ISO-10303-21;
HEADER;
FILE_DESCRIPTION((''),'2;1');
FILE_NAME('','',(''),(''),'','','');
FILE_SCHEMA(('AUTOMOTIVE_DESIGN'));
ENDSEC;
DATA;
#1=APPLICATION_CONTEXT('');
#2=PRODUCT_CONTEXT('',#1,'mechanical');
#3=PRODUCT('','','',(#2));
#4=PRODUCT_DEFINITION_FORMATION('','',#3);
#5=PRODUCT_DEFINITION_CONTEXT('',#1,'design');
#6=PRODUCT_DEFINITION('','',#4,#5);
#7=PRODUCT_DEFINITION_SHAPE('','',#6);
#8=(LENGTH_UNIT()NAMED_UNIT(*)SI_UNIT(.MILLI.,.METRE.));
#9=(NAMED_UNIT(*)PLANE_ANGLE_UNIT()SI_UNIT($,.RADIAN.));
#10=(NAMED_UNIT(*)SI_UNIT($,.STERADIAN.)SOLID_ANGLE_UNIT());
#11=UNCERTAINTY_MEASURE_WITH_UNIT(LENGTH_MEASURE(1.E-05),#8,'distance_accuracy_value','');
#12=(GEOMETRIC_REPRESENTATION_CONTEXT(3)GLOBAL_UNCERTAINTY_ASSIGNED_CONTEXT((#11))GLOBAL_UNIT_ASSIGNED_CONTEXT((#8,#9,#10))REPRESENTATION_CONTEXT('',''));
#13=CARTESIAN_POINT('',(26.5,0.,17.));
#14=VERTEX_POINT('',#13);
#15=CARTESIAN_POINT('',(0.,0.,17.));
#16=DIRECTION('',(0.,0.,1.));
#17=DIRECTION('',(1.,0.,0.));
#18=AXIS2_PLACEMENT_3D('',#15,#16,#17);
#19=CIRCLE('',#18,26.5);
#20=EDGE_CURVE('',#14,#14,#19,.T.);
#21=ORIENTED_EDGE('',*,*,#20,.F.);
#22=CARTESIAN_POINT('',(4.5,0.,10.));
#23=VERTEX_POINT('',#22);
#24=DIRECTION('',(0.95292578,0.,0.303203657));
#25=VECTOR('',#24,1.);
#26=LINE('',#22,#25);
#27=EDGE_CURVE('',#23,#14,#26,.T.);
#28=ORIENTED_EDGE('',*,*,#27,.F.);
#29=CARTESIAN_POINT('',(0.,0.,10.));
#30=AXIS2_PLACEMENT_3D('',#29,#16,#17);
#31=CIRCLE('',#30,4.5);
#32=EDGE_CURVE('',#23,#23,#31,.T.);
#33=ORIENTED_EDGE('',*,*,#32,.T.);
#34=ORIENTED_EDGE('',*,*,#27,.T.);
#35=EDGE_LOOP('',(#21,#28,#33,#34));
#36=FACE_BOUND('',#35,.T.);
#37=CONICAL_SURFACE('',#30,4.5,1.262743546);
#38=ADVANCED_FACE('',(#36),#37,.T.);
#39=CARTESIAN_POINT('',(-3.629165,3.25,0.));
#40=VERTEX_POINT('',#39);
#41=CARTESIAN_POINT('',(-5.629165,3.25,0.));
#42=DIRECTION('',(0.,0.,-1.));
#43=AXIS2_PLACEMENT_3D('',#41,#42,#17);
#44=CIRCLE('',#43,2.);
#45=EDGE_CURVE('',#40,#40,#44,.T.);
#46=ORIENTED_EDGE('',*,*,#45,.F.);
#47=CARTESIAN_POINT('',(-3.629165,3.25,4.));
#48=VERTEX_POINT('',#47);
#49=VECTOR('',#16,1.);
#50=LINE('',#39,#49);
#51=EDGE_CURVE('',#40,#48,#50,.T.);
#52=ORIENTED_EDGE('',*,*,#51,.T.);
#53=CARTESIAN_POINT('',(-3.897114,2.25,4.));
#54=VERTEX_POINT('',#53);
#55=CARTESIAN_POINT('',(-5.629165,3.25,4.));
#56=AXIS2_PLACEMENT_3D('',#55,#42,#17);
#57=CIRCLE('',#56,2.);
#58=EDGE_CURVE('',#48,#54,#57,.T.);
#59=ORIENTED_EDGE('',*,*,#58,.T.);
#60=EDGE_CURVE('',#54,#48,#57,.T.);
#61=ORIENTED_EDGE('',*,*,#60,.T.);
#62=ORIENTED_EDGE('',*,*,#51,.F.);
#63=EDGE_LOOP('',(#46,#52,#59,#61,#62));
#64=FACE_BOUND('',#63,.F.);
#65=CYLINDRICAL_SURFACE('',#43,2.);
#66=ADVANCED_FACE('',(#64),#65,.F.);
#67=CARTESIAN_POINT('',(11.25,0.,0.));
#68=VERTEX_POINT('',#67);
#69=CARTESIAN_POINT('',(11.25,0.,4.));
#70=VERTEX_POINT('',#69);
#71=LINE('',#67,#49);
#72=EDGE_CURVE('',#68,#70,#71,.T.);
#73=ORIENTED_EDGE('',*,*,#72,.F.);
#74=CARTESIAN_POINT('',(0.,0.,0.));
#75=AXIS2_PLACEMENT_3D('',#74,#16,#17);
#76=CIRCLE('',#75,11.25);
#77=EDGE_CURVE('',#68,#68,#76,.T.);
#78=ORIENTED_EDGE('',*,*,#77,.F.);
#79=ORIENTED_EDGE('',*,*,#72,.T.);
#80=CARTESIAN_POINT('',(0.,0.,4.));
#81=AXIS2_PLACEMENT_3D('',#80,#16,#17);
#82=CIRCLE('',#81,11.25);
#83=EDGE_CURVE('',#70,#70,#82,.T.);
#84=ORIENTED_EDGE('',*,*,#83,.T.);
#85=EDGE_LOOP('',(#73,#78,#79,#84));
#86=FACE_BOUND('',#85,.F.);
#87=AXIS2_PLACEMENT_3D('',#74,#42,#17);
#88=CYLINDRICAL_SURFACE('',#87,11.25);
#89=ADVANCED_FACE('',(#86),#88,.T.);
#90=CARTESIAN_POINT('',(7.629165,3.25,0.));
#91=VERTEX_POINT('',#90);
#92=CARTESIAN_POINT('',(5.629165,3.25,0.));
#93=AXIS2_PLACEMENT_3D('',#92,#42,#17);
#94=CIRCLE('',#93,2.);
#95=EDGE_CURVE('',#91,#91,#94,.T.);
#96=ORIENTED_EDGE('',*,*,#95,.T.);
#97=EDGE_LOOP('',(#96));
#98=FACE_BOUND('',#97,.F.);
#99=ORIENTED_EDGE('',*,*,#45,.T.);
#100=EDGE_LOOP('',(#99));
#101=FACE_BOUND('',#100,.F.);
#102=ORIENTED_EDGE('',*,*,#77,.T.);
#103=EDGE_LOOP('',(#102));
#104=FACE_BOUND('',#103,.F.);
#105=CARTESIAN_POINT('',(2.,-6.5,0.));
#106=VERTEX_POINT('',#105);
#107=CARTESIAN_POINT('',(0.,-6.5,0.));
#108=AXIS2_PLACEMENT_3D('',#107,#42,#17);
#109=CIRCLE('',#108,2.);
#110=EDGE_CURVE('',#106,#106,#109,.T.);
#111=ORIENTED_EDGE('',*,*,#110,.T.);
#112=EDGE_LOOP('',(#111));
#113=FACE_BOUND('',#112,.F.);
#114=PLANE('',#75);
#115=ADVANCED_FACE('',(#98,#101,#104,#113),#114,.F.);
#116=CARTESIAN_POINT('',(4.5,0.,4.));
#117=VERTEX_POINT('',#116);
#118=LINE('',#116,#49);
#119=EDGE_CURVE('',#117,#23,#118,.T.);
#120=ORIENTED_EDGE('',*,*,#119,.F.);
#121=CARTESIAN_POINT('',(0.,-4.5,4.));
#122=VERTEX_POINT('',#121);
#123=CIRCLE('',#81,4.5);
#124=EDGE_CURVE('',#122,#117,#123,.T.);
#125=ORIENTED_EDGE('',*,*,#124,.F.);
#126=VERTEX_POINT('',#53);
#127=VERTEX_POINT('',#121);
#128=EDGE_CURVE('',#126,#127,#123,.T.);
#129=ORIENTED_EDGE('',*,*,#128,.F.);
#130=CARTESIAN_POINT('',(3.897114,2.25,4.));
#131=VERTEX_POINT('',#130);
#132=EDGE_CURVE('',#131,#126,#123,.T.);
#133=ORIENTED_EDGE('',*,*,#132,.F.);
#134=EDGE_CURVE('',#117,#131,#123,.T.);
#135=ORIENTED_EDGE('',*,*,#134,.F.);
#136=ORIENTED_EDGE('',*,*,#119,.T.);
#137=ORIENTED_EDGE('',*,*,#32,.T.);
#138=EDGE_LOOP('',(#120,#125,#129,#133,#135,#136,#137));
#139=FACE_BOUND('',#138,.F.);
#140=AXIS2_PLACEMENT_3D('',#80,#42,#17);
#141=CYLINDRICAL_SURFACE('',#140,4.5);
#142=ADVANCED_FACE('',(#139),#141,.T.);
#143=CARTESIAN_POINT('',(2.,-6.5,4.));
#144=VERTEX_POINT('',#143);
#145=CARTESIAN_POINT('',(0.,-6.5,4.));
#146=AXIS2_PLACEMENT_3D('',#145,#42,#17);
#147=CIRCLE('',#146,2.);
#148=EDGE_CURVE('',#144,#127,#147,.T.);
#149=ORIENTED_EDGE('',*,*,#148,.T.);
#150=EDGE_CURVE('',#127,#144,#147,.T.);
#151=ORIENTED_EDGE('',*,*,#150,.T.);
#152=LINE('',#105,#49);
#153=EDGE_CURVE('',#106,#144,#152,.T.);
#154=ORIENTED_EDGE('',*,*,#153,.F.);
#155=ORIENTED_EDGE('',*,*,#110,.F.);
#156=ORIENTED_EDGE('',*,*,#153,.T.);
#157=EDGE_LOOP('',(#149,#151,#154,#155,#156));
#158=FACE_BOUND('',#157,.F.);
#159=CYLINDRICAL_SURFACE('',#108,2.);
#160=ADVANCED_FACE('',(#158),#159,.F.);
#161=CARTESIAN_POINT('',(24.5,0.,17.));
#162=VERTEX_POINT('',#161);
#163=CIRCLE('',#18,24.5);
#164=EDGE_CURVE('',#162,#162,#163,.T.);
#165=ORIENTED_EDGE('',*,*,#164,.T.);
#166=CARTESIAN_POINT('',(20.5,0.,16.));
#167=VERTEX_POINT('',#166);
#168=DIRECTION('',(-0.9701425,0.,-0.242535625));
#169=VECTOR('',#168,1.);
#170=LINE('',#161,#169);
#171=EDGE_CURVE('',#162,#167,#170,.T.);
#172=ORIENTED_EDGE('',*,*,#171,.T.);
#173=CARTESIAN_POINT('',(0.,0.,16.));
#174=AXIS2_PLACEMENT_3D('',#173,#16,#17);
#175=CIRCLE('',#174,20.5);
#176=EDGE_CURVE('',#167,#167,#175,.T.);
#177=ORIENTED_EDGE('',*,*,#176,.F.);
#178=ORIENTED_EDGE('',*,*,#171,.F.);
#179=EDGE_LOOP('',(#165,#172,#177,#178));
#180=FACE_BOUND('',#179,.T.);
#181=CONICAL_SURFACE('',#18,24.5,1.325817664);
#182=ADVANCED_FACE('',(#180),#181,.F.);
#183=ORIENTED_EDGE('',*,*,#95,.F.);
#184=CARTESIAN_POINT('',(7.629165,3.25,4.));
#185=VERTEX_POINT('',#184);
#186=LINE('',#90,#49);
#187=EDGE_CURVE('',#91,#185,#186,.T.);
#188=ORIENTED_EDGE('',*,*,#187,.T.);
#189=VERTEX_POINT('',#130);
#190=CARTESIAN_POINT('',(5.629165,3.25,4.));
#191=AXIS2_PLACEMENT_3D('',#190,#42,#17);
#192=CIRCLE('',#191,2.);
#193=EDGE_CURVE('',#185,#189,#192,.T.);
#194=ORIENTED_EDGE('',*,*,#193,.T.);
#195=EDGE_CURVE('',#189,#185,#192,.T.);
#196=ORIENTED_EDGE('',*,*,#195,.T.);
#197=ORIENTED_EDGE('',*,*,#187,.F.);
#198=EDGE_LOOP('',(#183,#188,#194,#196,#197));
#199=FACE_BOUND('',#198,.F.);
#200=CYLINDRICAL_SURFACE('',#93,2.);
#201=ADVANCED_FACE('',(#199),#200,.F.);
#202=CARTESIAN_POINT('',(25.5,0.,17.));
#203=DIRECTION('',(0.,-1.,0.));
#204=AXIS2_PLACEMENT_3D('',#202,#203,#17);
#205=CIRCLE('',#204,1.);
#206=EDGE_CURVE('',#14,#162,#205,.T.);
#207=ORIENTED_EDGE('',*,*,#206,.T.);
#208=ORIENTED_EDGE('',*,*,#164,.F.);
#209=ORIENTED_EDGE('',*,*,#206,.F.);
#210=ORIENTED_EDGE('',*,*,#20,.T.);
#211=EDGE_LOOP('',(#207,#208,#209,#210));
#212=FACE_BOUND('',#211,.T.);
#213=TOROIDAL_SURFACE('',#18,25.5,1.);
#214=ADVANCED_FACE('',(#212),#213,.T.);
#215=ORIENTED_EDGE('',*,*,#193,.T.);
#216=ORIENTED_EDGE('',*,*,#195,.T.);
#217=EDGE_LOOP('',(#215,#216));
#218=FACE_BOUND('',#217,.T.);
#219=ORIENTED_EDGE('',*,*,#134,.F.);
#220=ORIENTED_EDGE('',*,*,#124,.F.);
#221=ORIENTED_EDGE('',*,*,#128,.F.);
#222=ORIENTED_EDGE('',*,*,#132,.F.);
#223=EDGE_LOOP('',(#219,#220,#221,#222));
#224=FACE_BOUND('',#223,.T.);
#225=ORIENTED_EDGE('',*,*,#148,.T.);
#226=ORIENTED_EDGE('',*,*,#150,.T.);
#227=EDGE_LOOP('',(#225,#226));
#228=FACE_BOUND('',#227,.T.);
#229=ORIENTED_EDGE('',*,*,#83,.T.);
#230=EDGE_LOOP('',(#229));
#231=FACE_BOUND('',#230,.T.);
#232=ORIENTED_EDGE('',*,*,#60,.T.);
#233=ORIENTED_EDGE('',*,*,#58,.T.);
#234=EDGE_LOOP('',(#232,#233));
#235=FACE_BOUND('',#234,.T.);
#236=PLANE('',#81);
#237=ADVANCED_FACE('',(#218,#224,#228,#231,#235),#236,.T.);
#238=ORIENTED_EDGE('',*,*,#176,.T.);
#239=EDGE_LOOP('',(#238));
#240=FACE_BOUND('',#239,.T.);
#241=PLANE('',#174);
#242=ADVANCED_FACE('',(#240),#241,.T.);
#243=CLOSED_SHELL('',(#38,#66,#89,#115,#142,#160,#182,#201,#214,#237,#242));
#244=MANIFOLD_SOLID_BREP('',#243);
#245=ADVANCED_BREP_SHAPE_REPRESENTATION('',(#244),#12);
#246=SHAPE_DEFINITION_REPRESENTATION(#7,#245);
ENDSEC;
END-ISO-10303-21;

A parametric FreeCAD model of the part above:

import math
import FreeCAD as App
import Part
import Sketcher
Q = App.Units.Quantity

doc = App.newDocument("Part")
params = doc.addObject("Spreadsheet::Sheet", "Params")
for row, (alias, value) in enumerate([
    ("sketch1_diameter", "22.5 mm"),
    ("pad1_length", "4 mm"),
    ("sketch2_diameter", "9 mm"),
    ("pad2_length", "6 mm"),
    ("sketch3_radius", "1 mm"),
    ("sketch3_height", "6 mm"),
    ("sketch3_width", "20.5 mm"),
    ("sketch3_width2", "4.5 mm"),
    ("revolution_angle", "360 deg"),
    ("sketch4_diameter", "4 mm"),
    ("pocket1_length", "4 mm"),
], start=1):
    params.set(f"A{row}", alias)
    params.set(f"B{row}", "=" + value)
    params.setAlias(f"B{row}", alias)

body = doc.addObject("PartDesign::Body", "Body")

# Sketch on XY plane
sketch1 = doc.addObject("Sketcher::SketchObject", "Sketch")
body.addObject(sketch1)
sketch1.AttachmentSupport = (doc.XY_Plane, [""])
sketch1.MapMode = "FlatFace"
sketch1.addGeometry(Part.Circle(App.Vector(0, 0, 0), App.Vector(0, 0, 1), 11), False)
sketch1.addConstraint([
    Sketcher.Constraint("Coincident", 0, 3, -1, 1),
    Sketcher.Constraint("Diameter", 0, Q("22.5 mm")),
])
sketch1.setExpression("Constraints[1]", "Params.sketch1_diameter")
pad1 = doc.addObject("PartDesign::Pad", "Pad")
body.addObject(pad1)
pad1.Profile = sketch1
pad1.setExpression("Length", "Params.pad1_length")

# Sketch on XY plane
sketch2 = doc.addObject("Sketcher::SketchObject", "Sketch001")
body.addObject(sketch2)
sketch2.AttachmentSupport = (doc.XY_Plane, [""])
sketch2.MapMode = "FlatFace"
sketch2.AttachmentOffset = App.Placement(App.Vector(0, 0, 4), App.Rotation())
sketch2.addGeometry(Part.Circle(App.Vector(0, 0, 0), App.Vector(0, 0, 1), 4.5), False)
sketch2.addConstraint([
    Sketcher.Constraint("Coincident", 0, 3, -1, 1),
    Sketcher.Constraint("Diameter", 0, Q("9 mm")),
])
sketch2.setExpression("Constraints[1]", "Params.sketch2_diameter")
pad2 = doc.addObject("PartDesign::Pad", "Pad001")
body.addObject(pad2)
pad2.Profile = sketch2
pad2.setExpression("Length", "Params.pad2_length")

# Sketch on XZ plane
sketch3 = doc.addObject("Sketcher::SketchObject", "Sketch002")
body.addObject(sketch3)
sketch3.AttachmentSupport = (doc.XZ_Plane, [""])
sketch3.MapMode = "FlatFace"
sketch3.addGeometry([
    Part.LineSegment(App.Vector(20.5, 16, 0), App.Vector(0, 16, 0)),  # 0
    Part.LineSegment(App.Vector(0, 16, 0), App.Vector(0, 10, 0)),  # 1
    Part.LineSegment(App.Vector(0, 10, 0), App.Vector(4.5, 10, 0)),  # 2
    Part.LineSegment(App.Vector(4.5, 10, 0), App.Vector(26.5, 17, 0)),  # 3
    Part.ArcOfCircle(Part.Circle(App.Vector(25.5, 17, 0), App.Vector(0, 0, 1), 1), math.radians(0), math.radians(180)),  # 4
    Part.LineSegment(App.Vector(24.5, 17, 0), App.Vector(20.5, 16, 0)),  # 5
], False)
sketch3.addConstraint([
    Sketcher.Constraint("Coincident", 0, 2, 1, 1),
    Sketcher.Constraint("Coincident", 1, 2, 2, 1),
    Sketcher.Constraint("Coincident", 2, 2, 3, 1),
    Sketcher.Constraint("Coincident", 3, 2, 4, 1),
    Sketcher.Constraint("Coincident", 4, 2, 5, 1),
    Sketcher.Constraint("Coincident", 5, 2, 0, 1),
    Sketcher.Constraint("Horizontal", 0),
    Sketcher.Constraint("Vertical", 1),
    Sketcher.Constraint("Horizontal", 2),
    Sketcher.Constraint("PointOnObject", 0, 2, -2),
    Sketcher.Constraint("Horizontal", 4, 3, 3, 2),
    Sketcher.Constraint("Horizontal", 3, 2, 4, 2),
    Sketcher.Constraint("Radius", 4, Q("1 mm")),
    Sketcher.Constraint("DistanceY", 1, 2, 1, 1, Q("6 mm")),
    Sketcher.Constraint("DistanceX", 0, 2, 0, 1, Q("20.5 mm")),
    Sketcher.Constraint("DistanceX", 2, 1, 2, 2, Q("4.5 mm")),
    Sketcher.Constraint("DistanceY", -1, 1, 4, 3, Q("17 mm")),
    Sketcher.Constraint("DistanceY", -1, 1, 0, 2, Q("16 mm")),
    Sketcher.Constraint("DistanceX", 2, 2, 4, 3, Q("21 mm")),
])
sketch3.setExpression("Constraints[12]", "Params.sketch3_radius")
sketch3.setExpression("Constraints[13]", "Params.sketch3_height")
sketch3.setExpression("Constraints[14]", "Params.sketch3_width")
sketch3.setExpression("Constraints[15]", "Params.sketch3_width2")
revolution = doc.addObject("PartDesign::Revolution", "Revolution")
body.addObject(revolution)
revolution.Profile = sketch3
revolution.ReferenceAxis = (sketch3, ["V_Axis"])
revolution.setExpression("Angle", "Params.revolution_angle")

# Sketch on XY plane
sketch4 = doc.addObject("Sketcher::SketchObject", "Sketch003")
body.addObject(sketch4)
sketch4.AttachmentSupport = (doc.XY_Plane, [""])
sketch4.MapMode = "FlatFace"
sketch4.addGeometry([
    Part.Circle(App.Vector(-5.6, 3.2, 0), App.Vector(0, 0, 1), 2),
    Part.Circle(App.Vector(5.6, 3.2, 0), App.Vector(0, 0, 1), 2),
    Part.Circle(App.Vector(0, -6.5, 0), App.Vector(0, 0, 1), 2),
], False)
sketch4.addConstraint([
    Sketcher.Constraint("Equal", 0, 1),
    Sketcher.Constraint("Equal", 1, 2),
    Sketcher.Constraint("Symmetric", 0, 3, 1, 3, -2),
    Sketcher.Constraint("PointOnObject", 2, 3, -2),
    Sketcher.Constraint("Diameter", 0, Q("4 mm")),
    Sketcher.Constraint("DistanceY", 2, 3, -1, 1, Q("6.5 mm")),
    Sketcher.Constraint("DistanceY", -1, 1, 0, 3, Q("3.25 mm")),
    Sketcher.Constraint("DistanceX", 0, 3, 1, 3, Q("11.25833 mm")),
])
sketch4.setExpression("Constraints[4]", "Params.sketch4_diameter")
pocket1 = doc.addObject("PartDesign::Pocket", "Pocket")
body.addObject(pocket1)
pocket1.Profile = sketch4
pocket1.setExpression("Length", "Params.pocket1_length")
pocket1.Reversed = True

doc.recompute()
